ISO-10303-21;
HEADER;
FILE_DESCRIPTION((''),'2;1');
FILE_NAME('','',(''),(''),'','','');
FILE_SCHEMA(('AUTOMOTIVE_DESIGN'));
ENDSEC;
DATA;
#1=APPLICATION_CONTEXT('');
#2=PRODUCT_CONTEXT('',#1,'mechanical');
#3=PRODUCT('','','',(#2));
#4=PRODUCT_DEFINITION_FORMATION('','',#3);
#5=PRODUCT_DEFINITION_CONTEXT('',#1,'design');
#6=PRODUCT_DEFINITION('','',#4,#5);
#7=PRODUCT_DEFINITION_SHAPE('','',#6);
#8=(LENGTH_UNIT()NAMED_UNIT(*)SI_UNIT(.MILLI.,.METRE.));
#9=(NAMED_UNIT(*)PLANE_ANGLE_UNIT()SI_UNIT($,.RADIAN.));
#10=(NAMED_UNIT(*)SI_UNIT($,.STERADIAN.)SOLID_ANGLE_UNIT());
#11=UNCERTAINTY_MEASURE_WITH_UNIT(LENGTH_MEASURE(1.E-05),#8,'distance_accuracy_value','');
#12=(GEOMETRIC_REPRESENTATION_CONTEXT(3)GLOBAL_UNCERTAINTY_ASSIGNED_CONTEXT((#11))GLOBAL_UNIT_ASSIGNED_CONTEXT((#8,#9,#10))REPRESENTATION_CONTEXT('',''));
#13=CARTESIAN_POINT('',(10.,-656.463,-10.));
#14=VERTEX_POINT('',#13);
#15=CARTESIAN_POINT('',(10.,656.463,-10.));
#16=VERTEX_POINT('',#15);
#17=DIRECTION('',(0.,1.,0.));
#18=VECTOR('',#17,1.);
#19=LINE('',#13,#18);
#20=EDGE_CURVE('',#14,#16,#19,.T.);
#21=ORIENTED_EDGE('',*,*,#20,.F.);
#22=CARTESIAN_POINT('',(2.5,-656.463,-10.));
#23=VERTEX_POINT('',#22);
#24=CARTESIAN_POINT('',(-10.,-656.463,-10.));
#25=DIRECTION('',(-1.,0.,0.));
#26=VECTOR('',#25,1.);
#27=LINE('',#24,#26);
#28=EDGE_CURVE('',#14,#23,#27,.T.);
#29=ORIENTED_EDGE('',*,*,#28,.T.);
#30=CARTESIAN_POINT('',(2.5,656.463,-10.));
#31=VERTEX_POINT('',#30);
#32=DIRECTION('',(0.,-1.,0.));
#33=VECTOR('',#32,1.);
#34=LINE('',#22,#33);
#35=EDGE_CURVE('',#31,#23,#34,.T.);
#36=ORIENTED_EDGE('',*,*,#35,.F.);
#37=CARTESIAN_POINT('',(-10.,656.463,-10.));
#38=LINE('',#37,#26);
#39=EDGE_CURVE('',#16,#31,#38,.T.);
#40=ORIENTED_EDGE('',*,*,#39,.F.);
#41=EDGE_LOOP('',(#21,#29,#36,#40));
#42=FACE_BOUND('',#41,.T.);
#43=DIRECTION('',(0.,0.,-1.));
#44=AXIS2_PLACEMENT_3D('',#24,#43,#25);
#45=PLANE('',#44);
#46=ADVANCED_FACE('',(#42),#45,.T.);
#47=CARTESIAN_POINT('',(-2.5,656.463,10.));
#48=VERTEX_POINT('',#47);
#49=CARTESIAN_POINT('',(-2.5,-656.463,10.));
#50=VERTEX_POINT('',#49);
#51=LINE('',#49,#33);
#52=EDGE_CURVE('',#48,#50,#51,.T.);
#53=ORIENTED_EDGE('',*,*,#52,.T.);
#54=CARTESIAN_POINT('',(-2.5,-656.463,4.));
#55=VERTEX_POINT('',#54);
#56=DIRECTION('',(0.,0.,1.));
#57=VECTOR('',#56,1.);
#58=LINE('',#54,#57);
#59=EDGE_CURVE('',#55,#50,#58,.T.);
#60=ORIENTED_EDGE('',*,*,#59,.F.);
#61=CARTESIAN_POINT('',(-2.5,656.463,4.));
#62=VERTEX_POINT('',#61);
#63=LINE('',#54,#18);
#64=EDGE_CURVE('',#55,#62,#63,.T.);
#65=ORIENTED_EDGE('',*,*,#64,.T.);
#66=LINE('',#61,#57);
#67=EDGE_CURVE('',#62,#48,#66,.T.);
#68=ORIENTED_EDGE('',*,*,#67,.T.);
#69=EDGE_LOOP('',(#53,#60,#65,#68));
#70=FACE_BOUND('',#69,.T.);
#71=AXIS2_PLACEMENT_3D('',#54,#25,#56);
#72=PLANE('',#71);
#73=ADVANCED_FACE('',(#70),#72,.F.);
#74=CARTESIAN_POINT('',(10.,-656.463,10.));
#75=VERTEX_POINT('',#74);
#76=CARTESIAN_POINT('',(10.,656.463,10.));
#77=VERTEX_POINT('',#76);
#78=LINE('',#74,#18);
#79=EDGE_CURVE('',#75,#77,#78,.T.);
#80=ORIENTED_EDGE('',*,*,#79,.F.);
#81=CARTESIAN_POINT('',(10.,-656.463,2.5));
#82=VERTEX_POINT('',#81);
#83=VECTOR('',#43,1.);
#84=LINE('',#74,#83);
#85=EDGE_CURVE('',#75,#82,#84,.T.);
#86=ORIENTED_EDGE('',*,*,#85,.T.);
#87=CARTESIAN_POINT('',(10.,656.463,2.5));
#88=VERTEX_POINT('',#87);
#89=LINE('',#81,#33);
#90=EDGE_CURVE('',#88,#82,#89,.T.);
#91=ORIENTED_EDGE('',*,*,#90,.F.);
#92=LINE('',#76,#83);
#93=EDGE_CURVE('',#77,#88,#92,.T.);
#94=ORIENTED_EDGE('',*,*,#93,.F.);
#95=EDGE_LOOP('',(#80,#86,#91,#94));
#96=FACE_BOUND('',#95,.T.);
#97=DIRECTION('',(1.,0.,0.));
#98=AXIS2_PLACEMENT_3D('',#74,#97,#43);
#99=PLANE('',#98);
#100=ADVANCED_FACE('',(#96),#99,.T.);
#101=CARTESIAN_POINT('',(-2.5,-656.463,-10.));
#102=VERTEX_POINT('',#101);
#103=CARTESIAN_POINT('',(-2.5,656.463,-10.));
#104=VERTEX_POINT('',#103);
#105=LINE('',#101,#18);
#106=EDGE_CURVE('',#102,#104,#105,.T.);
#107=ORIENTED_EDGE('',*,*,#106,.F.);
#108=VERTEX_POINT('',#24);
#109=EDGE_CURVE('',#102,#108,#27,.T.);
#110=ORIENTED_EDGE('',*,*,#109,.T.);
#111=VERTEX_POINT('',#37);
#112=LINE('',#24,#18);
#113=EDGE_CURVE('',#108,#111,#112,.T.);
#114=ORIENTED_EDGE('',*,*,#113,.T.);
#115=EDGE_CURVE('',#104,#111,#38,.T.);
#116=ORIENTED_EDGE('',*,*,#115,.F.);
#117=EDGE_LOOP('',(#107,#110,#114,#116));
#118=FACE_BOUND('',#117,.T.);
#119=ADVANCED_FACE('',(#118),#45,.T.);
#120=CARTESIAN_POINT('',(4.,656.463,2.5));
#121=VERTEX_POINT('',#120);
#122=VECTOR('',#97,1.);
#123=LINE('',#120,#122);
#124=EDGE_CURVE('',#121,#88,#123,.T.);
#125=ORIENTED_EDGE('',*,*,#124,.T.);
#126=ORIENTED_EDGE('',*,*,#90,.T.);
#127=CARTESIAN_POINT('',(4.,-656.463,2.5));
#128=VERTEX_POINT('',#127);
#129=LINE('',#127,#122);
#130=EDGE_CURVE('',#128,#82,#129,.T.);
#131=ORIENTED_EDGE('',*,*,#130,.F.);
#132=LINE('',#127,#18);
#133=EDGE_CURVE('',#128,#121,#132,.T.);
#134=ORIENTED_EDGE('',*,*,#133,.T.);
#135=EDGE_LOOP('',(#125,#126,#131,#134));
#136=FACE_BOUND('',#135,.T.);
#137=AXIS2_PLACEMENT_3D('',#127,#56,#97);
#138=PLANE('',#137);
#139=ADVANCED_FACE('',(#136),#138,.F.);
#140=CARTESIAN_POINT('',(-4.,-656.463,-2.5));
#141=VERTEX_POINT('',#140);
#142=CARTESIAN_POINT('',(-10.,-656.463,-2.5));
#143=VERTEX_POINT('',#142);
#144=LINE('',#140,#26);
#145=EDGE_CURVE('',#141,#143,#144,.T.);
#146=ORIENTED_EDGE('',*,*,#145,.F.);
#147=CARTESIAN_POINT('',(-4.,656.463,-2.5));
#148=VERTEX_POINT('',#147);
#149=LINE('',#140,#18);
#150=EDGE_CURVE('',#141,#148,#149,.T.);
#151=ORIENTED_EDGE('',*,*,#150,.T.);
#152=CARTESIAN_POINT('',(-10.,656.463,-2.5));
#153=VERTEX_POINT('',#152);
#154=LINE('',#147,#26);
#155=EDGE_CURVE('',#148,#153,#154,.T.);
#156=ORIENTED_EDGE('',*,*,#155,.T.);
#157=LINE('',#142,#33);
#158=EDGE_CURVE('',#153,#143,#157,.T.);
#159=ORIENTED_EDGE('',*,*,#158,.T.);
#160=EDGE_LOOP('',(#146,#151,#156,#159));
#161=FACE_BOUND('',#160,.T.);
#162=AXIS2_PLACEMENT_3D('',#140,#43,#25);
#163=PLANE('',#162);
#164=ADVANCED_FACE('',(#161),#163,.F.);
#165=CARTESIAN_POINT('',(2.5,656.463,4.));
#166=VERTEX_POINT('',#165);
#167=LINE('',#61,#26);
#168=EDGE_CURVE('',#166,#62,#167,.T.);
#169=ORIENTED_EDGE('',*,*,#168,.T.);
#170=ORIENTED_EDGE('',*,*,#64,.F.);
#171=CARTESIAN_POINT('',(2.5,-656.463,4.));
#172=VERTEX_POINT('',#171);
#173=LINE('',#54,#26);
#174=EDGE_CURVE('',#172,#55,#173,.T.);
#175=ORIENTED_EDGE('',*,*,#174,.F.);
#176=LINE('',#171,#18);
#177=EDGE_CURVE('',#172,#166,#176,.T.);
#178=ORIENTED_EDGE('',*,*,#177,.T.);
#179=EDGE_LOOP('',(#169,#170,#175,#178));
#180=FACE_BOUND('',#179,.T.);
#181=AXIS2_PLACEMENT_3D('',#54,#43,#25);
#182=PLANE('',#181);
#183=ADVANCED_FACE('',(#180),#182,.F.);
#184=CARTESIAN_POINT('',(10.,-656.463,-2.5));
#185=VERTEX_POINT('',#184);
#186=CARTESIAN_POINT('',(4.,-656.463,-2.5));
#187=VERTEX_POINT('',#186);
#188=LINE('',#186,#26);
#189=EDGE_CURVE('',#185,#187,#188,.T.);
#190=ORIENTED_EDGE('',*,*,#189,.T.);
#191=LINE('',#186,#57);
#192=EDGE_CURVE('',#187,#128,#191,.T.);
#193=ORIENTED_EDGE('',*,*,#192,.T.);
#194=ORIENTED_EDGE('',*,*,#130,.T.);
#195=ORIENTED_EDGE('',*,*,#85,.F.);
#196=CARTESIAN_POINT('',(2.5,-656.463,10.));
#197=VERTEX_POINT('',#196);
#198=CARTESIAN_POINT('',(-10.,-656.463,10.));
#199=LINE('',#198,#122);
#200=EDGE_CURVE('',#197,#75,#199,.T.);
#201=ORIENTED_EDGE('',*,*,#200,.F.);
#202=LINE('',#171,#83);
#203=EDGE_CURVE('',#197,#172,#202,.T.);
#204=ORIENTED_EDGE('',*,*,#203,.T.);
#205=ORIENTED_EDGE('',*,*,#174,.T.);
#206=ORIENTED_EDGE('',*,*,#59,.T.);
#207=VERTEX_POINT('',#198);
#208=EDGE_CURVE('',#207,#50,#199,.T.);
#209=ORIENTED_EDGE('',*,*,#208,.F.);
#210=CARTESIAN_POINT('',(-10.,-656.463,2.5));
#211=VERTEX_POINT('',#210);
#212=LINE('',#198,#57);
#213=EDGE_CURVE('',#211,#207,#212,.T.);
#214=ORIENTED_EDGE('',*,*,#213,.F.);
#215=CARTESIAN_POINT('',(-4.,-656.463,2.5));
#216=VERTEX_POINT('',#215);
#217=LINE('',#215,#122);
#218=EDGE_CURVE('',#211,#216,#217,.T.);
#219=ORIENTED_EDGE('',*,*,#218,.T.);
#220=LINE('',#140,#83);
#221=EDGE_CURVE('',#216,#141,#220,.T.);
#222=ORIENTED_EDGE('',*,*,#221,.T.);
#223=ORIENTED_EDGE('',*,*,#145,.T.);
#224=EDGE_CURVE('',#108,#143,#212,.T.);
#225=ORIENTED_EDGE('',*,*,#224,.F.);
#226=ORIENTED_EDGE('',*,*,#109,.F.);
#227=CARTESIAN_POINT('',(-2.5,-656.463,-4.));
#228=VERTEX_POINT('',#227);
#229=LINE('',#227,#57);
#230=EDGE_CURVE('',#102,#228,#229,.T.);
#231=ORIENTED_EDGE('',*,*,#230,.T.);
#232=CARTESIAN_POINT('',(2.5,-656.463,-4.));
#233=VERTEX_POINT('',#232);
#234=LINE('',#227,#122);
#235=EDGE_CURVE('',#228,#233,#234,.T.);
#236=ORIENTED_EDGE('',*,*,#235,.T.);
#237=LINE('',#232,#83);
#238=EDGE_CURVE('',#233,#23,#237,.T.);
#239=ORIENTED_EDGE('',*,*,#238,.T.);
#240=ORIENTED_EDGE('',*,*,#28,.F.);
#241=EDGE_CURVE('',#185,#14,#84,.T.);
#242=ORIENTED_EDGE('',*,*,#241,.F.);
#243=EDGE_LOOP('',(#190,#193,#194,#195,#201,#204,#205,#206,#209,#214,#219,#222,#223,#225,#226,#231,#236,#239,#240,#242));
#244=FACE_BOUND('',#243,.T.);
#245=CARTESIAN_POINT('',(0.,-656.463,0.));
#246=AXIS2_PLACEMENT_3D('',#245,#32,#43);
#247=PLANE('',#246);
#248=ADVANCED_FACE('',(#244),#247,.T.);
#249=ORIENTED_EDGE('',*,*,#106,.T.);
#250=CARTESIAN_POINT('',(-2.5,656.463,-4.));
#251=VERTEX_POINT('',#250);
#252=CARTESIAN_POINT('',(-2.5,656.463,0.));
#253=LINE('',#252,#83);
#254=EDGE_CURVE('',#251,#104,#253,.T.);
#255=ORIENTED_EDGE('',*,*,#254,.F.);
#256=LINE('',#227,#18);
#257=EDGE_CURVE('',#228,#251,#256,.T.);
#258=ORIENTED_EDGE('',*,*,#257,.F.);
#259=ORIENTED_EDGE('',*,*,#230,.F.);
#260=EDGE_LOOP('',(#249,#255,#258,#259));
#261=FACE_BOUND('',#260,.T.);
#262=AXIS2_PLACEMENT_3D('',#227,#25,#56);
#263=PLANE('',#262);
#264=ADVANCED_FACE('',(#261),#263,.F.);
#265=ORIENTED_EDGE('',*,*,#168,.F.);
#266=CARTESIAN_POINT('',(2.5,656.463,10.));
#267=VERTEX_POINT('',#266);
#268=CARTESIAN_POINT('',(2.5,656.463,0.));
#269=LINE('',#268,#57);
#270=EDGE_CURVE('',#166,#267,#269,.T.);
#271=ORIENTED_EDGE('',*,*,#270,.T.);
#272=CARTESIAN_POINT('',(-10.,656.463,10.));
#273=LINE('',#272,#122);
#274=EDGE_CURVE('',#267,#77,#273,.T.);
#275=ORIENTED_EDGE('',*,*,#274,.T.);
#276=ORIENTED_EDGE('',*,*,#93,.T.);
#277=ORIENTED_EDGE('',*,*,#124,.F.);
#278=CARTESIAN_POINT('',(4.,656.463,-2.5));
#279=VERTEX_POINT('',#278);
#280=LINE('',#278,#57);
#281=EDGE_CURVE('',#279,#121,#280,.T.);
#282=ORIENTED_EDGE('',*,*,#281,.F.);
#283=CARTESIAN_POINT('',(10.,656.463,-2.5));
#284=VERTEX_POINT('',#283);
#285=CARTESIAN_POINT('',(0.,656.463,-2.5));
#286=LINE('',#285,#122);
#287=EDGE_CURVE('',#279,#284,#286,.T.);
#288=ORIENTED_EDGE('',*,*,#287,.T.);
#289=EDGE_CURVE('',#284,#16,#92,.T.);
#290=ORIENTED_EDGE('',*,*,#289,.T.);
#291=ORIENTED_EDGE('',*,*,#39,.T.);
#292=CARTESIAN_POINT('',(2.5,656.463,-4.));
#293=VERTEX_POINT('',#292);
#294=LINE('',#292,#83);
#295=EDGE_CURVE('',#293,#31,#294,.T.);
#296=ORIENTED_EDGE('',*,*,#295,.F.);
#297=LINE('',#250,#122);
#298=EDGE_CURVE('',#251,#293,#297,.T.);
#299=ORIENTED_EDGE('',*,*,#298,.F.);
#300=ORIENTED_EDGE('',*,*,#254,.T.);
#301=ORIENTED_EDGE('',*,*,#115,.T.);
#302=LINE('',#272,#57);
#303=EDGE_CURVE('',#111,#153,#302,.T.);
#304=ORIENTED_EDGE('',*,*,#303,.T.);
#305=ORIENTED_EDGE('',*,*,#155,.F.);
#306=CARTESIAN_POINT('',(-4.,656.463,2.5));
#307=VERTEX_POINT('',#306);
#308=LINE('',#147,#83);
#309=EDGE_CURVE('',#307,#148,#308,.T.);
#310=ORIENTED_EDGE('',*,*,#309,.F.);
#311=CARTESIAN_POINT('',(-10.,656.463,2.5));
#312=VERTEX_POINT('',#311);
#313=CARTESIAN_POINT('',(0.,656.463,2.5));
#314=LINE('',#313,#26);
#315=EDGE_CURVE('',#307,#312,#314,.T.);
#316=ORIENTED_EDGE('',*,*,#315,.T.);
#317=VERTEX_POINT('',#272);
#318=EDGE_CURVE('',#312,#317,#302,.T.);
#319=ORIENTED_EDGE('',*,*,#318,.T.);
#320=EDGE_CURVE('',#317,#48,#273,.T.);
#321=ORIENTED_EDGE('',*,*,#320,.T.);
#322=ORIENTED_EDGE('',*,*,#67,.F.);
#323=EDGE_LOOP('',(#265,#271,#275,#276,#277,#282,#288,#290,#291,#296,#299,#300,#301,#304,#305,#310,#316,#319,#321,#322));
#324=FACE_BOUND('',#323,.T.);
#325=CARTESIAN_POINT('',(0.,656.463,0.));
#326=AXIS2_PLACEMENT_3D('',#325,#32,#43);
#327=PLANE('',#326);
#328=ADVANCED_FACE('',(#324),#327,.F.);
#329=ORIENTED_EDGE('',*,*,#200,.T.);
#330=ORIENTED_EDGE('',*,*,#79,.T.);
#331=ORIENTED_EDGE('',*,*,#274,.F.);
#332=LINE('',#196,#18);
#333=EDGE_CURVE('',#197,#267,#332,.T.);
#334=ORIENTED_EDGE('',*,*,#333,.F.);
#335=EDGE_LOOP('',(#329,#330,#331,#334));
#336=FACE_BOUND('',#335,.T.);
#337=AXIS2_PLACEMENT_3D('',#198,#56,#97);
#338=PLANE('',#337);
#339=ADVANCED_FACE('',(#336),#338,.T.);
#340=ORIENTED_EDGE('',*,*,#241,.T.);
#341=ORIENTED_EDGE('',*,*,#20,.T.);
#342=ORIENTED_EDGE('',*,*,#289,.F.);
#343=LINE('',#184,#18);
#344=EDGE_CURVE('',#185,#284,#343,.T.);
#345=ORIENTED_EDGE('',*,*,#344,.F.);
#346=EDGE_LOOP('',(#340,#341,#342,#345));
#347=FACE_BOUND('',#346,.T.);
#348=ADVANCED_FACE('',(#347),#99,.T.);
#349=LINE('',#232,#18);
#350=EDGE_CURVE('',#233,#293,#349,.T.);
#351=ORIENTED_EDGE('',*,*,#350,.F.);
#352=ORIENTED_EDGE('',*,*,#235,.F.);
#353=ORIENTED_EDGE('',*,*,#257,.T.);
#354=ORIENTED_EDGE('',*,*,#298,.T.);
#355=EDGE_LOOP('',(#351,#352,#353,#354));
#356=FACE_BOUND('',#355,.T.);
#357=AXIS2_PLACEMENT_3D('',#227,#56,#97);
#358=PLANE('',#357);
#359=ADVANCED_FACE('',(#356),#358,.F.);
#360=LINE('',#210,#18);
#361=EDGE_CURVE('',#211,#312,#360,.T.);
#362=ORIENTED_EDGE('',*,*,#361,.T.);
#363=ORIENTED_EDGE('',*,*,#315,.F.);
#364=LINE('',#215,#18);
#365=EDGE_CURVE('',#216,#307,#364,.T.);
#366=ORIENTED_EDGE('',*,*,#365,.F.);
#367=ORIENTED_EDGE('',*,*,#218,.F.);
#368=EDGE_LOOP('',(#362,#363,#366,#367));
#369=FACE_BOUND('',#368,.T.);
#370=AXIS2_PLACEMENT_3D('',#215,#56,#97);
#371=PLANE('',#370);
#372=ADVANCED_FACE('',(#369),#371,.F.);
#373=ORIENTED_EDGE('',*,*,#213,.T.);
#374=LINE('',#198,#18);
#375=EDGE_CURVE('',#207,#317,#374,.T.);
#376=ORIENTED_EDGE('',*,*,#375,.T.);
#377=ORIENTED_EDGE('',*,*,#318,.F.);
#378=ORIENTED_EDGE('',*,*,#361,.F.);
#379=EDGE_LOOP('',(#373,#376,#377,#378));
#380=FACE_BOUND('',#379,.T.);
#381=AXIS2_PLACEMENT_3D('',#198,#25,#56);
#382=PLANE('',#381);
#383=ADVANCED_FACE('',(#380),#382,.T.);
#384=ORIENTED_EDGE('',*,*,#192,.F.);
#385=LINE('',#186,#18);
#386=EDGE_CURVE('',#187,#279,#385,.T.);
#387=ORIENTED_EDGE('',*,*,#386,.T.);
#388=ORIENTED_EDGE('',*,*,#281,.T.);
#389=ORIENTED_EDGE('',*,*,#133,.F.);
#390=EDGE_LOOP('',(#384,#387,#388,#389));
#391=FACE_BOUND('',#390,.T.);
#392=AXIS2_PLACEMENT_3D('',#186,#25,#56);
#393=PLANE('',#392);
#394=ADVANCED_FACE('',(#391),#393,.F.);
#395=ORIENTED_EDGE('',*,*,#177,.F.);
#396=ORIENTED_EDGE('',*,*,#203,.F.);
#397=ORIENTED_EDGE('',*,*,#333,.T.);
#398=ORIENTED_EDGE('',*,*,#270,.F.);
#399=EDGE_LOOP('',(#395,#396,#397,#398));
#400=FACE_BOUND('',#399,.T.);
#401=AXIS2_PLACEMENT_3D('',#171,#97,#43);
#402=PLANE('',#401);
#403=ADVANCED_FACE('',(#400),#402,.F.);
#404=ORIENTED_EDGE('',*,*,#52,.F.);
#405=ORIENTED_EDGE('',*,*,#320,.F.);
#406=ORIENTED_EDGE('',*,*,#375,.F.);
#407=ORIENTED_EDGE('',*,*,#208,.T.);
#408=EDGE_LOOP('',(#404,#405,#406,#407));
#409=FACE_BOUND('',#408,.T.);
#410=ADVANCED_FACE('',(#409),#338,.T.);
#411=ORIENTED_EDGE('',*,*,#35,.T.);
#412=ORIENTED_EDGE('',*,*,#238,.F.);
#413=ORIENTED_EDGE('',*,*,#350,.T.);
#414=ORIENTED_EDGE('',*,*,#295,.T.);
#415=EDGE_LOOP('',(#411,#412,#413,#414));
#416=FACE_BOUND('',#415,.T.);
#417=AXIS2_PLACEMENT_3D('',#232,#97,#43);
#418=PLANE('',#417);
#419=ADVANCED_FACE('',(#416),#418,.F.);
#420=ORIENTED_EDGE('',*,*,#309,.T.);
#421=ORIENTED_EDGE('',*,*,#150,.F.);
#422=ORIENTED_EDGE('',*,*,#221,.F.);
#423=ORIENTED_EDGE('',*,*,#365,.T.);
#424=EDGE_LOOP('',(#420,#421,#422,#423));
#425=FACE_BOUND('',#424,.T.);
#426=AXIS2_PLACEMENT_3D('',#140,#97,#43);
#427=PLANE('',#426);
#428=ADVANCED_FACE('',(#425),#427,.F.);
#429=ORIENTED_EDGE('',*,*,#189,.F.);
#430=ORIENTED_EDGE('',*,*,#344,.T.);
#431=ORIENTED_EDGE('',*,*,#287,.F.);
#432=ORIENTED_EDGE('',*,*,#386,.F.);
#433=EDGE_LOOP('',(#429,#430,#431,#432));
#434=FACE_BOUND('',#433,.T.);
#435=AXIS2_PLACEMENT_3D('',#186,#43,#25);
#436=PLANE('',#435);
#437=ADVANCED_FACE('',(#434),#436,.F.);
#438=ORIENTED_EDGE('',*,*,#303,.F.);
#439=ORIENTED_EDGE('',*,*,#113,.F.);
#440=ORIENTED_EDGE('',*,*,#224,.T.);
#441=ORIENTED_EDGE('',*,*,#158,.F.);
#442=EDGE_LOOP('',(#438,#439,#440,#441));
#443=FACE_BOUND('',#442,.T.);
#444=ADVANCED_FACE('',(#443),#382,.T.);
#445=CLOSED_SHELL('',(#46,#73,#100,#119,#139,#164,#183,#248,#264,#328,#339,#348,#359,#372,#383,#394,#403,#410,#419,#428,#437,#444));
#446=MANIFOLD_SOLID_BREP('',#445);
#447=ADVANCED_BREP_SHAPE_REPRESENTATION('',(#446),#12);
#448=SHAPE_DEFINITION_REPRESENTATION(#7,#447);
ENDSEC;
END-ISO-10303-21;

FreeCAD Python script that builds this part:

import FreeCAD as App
import Part
import Sketcher

doc = App.newDocument("Part")
body = doc.addObject("PartDesign::Body", "Body")

# Sketch on XZ plane
sketch1 = doc.addObject("Sketcher::SketchObject", "Sketch")
body.addObject(sketch1)
sketch1.AttachmentSupport = (doc.XZ_Plane, [""])
sketch1.MapMode = "FlatFace"
sketch1.addGeometry([
    Part.LineSegment(App.Vector(-10, -10, 0), App.Vector(-10, 10, 0)),
    Part.LineSegment(App.Vector(-10, 10, 0), App.Vector(10, 10, 0)),
    Part.LineSegment(App.Vector(10, 10, 0), App.Vector(10, -10, 0)),
    Part.LineSegment(App.Vector(10, -10, 0), App.Vector(-10, -10, 0)),
], False)
sketch1.addConstraint([
    Sketcher.Constraint("Coincident", 0, 2, 1, 1),
    Sketcher.Constraint("Coincident", 1, 2, 2, 1),
    Sketcher.Constraint("Coincident", 2, 2, 3, 1),
    Sketcher.Constraint("Coincident", 3, 2, 0, 1),
    Sketcher.Constraint("Vertical", 0),
    Sketcher.Constraint("Horizontal", 1),
    Sketcher.Constraint("Vertical", 2),
    Sketcher.Constraint("Horizontal", 3),
    Sketcher.Constraint("Symmetric", 0, 2, 2, 2, -1, 1),
    Sketcher.Constraint("Equal", 3, 0),
    Sketcher.Constraint("DistanceX", 1, 1, 1, 2, 20.0),
])
pad1 = doc.addObject("PartDesign::Pad", "Pad")
body.addObject(pad1)
pad1.Profile = sketch1
pad1.Type = "TwoLengths"
pad1.Length = 656.463
pad1.Length2 = 656.463
pad1.Reversed = True

# Sketch on XZ plane
sketch2 = doc.addObject("Sketcher::SketchObject", "Sketch001")
body.addObject(sketch2)
sketch2.AttachmentSupport = (doc.XZ_Plane, [""])
sketch2.MapMode = "FlatFace"
sketch2.addGeometry([
    Part.LineSegment(App.Vector(-2, -16, 0), App.Vector(-2, -4, 0)),  # 0
    Part.LineSegment(App.Vector(-2, -4, 0), App.Vector(2, -4, 0)),  # 1
    Part.LineSegment(App.Vector(2, -4, 0), App.Vector(2, -16, 0)),  # 2
    Part.LineSegment(App.Vector(2, -16, 0), App.Vector(-2, -16, 0)),  # 3
    Part.LineSegment(App.Vector(4, -2, 0), App.Vector(4, 2, 0)),  # 4
    Part.LineSegment(App.Vector(4, 2, 0), App.Vector(16, 2, 0)),  # 5
    Part.LineSegment(App.Vector(16, 2, 0), App.Vector(16, -2, 0)),  # 6
    Part.LineSegment(App.Vector(16, -2, 0), App.Vector(4, -2, 0)),  # 7
    Part.LineSegment(App.Vector(-16, -2, 0), App.Vector(-16, 2, 0)),  # 8
    Part.LineSegment(App.Vector(-16, 2, 0), App.Vector(-4, 2, 0)),  # 9
    Part.LineSegment(App.Vector(-4, 2, 0), App.Vector(-4, -2, 0)),  # 10
    Part.LineSegment(App.Vector(-4, -2, 0), App.Vector(-16, -2, 0)),  # 11
    Part.LineSegment(App.Vector(-2, 4, 0), App.Vector(-2, 16, 0)),  # 12
    Part.LineSegment(App.Vector(-2, 16, 0), App.Vector(2, 16, 0)),  # 13
    Part.LineSegment(App.Vector(2, 16, 0), App.Vector(2, 4, 0)),  # 14
    Part.LineSegment(App.Vector(2, 4, 0), App.Vector(-2, 4, 0)),  # 15
], False)
sketch2.addConstraint([
    Sketcher.Constraint("Coincident", 0, 2, 1, 1),
    Sketcher.Constraint("Coincident", 1, 2, 2, 1),
    Sketcher.Constraint("Coincident", 2, 2, 3, 1),
    Sketcher.Constraint("Coincident", 3, 2, 0, 1),
    Sketcher.Constraint("Coincident", 4, 2, 5, 1),
    Sketcher.Constraint("Coincident", 5, 2, 6, 1),
    Sketcher.Constraint("Coincident", 6, 2, 7, 1),
    Sketcher.Constraint("Coincident", 7, 2, 4, 1),
    Sketcher.Constraint("Coincident", 8, 2, 9, 1),
    Sketcher.Constraint("Coincident", 9, 2, 10, 1),
    Sketcher.Constraint("Coincident", 10, 2, 11, 1),
    Sketcher.Constraint("Coincident", 11, 2, 8, 1),
    Sketcher.Constraint("Coincident", 12, 2, 13, 1),
    Sketcher.Constraint("Coincident", 13, 2, 14, 1),
    Sketcher.Constraint("Coincident", 14, 2, 15, 1),
    Sketcher.Constraint("Coincident", 15, 2, 12, 1),
    Sketcher.Constraint("Vertical", 0),
    Sketcher.Constraint("Horizontal", 1),
    Sketcher.Constraint("Vertical", 2),
    Sketcher.Constraint("Horizontal", 3),
    Sketcher.Constraint("Vertical", 4),
    Sketcher.Constraint("Horizontal", 5),
    Sketcher.Constraint("Vertical", 6),
    Sketcher.Constraint("Horizontal", 7),
    Sketcher.Constraint("Vertical", 8),
    Sketcher.Constraint("Horizontal", 9),
    Sketcher.Constraint("Vertical", 10),
    Sketcher.Constraint("Horizontal", 11),
    Sketcher.Constraint("Vertical", 12),
    Sketcher.Constraint("Horizontal", 13),
    Sketcher.Constraint("Vertical", 14),
    Sketcher.Constraint("Horizontal", 15),
    Sketcher.Constraint("Symmetric", 6, 2, 8, 2, -1, 1),
    Sketcher.Constraint("Symmetric", 4, 2, 10, 2, -1, 1),
    Sketcher.Constraint("Symmetric", 2, 2, 12, 2, -1, 1),
    Sketcher.Constraint("Symmetric", 0, 2, 14, 2, -1, 1),
    Sketcher.Constraint("Horizontal", 5, 2, 8, 2),
    Sketcher.Constraint("Vertical", 3, 2, 12, 2),
    Sketcher.Constraint("Equal", 11, 0),
    Sketcher.Constraint("Equal", 15, 4),
    Sketcher.Constraint("DistanceX", 1, 1, 1, 2, 5.0),
    Sketcher.Constraint("DistanceX", 5, 1, 5, 2, 12.0),
    Sketcher.Constraint("DistanceY", 0, 2, -1, 1, 4.0),
    Sketcher.Constraint("DistanceX", -1, 1, 4, 2, 4.0),
])
pocket1 = doc.addObject("PartDesign::Pocket", "Pocket")
body.addObject(pocket1)
pocket1.Profile = sketch2
pocket1.Type = "ThroughAll"
pocket1.Midplane = True

doc.recompute()
